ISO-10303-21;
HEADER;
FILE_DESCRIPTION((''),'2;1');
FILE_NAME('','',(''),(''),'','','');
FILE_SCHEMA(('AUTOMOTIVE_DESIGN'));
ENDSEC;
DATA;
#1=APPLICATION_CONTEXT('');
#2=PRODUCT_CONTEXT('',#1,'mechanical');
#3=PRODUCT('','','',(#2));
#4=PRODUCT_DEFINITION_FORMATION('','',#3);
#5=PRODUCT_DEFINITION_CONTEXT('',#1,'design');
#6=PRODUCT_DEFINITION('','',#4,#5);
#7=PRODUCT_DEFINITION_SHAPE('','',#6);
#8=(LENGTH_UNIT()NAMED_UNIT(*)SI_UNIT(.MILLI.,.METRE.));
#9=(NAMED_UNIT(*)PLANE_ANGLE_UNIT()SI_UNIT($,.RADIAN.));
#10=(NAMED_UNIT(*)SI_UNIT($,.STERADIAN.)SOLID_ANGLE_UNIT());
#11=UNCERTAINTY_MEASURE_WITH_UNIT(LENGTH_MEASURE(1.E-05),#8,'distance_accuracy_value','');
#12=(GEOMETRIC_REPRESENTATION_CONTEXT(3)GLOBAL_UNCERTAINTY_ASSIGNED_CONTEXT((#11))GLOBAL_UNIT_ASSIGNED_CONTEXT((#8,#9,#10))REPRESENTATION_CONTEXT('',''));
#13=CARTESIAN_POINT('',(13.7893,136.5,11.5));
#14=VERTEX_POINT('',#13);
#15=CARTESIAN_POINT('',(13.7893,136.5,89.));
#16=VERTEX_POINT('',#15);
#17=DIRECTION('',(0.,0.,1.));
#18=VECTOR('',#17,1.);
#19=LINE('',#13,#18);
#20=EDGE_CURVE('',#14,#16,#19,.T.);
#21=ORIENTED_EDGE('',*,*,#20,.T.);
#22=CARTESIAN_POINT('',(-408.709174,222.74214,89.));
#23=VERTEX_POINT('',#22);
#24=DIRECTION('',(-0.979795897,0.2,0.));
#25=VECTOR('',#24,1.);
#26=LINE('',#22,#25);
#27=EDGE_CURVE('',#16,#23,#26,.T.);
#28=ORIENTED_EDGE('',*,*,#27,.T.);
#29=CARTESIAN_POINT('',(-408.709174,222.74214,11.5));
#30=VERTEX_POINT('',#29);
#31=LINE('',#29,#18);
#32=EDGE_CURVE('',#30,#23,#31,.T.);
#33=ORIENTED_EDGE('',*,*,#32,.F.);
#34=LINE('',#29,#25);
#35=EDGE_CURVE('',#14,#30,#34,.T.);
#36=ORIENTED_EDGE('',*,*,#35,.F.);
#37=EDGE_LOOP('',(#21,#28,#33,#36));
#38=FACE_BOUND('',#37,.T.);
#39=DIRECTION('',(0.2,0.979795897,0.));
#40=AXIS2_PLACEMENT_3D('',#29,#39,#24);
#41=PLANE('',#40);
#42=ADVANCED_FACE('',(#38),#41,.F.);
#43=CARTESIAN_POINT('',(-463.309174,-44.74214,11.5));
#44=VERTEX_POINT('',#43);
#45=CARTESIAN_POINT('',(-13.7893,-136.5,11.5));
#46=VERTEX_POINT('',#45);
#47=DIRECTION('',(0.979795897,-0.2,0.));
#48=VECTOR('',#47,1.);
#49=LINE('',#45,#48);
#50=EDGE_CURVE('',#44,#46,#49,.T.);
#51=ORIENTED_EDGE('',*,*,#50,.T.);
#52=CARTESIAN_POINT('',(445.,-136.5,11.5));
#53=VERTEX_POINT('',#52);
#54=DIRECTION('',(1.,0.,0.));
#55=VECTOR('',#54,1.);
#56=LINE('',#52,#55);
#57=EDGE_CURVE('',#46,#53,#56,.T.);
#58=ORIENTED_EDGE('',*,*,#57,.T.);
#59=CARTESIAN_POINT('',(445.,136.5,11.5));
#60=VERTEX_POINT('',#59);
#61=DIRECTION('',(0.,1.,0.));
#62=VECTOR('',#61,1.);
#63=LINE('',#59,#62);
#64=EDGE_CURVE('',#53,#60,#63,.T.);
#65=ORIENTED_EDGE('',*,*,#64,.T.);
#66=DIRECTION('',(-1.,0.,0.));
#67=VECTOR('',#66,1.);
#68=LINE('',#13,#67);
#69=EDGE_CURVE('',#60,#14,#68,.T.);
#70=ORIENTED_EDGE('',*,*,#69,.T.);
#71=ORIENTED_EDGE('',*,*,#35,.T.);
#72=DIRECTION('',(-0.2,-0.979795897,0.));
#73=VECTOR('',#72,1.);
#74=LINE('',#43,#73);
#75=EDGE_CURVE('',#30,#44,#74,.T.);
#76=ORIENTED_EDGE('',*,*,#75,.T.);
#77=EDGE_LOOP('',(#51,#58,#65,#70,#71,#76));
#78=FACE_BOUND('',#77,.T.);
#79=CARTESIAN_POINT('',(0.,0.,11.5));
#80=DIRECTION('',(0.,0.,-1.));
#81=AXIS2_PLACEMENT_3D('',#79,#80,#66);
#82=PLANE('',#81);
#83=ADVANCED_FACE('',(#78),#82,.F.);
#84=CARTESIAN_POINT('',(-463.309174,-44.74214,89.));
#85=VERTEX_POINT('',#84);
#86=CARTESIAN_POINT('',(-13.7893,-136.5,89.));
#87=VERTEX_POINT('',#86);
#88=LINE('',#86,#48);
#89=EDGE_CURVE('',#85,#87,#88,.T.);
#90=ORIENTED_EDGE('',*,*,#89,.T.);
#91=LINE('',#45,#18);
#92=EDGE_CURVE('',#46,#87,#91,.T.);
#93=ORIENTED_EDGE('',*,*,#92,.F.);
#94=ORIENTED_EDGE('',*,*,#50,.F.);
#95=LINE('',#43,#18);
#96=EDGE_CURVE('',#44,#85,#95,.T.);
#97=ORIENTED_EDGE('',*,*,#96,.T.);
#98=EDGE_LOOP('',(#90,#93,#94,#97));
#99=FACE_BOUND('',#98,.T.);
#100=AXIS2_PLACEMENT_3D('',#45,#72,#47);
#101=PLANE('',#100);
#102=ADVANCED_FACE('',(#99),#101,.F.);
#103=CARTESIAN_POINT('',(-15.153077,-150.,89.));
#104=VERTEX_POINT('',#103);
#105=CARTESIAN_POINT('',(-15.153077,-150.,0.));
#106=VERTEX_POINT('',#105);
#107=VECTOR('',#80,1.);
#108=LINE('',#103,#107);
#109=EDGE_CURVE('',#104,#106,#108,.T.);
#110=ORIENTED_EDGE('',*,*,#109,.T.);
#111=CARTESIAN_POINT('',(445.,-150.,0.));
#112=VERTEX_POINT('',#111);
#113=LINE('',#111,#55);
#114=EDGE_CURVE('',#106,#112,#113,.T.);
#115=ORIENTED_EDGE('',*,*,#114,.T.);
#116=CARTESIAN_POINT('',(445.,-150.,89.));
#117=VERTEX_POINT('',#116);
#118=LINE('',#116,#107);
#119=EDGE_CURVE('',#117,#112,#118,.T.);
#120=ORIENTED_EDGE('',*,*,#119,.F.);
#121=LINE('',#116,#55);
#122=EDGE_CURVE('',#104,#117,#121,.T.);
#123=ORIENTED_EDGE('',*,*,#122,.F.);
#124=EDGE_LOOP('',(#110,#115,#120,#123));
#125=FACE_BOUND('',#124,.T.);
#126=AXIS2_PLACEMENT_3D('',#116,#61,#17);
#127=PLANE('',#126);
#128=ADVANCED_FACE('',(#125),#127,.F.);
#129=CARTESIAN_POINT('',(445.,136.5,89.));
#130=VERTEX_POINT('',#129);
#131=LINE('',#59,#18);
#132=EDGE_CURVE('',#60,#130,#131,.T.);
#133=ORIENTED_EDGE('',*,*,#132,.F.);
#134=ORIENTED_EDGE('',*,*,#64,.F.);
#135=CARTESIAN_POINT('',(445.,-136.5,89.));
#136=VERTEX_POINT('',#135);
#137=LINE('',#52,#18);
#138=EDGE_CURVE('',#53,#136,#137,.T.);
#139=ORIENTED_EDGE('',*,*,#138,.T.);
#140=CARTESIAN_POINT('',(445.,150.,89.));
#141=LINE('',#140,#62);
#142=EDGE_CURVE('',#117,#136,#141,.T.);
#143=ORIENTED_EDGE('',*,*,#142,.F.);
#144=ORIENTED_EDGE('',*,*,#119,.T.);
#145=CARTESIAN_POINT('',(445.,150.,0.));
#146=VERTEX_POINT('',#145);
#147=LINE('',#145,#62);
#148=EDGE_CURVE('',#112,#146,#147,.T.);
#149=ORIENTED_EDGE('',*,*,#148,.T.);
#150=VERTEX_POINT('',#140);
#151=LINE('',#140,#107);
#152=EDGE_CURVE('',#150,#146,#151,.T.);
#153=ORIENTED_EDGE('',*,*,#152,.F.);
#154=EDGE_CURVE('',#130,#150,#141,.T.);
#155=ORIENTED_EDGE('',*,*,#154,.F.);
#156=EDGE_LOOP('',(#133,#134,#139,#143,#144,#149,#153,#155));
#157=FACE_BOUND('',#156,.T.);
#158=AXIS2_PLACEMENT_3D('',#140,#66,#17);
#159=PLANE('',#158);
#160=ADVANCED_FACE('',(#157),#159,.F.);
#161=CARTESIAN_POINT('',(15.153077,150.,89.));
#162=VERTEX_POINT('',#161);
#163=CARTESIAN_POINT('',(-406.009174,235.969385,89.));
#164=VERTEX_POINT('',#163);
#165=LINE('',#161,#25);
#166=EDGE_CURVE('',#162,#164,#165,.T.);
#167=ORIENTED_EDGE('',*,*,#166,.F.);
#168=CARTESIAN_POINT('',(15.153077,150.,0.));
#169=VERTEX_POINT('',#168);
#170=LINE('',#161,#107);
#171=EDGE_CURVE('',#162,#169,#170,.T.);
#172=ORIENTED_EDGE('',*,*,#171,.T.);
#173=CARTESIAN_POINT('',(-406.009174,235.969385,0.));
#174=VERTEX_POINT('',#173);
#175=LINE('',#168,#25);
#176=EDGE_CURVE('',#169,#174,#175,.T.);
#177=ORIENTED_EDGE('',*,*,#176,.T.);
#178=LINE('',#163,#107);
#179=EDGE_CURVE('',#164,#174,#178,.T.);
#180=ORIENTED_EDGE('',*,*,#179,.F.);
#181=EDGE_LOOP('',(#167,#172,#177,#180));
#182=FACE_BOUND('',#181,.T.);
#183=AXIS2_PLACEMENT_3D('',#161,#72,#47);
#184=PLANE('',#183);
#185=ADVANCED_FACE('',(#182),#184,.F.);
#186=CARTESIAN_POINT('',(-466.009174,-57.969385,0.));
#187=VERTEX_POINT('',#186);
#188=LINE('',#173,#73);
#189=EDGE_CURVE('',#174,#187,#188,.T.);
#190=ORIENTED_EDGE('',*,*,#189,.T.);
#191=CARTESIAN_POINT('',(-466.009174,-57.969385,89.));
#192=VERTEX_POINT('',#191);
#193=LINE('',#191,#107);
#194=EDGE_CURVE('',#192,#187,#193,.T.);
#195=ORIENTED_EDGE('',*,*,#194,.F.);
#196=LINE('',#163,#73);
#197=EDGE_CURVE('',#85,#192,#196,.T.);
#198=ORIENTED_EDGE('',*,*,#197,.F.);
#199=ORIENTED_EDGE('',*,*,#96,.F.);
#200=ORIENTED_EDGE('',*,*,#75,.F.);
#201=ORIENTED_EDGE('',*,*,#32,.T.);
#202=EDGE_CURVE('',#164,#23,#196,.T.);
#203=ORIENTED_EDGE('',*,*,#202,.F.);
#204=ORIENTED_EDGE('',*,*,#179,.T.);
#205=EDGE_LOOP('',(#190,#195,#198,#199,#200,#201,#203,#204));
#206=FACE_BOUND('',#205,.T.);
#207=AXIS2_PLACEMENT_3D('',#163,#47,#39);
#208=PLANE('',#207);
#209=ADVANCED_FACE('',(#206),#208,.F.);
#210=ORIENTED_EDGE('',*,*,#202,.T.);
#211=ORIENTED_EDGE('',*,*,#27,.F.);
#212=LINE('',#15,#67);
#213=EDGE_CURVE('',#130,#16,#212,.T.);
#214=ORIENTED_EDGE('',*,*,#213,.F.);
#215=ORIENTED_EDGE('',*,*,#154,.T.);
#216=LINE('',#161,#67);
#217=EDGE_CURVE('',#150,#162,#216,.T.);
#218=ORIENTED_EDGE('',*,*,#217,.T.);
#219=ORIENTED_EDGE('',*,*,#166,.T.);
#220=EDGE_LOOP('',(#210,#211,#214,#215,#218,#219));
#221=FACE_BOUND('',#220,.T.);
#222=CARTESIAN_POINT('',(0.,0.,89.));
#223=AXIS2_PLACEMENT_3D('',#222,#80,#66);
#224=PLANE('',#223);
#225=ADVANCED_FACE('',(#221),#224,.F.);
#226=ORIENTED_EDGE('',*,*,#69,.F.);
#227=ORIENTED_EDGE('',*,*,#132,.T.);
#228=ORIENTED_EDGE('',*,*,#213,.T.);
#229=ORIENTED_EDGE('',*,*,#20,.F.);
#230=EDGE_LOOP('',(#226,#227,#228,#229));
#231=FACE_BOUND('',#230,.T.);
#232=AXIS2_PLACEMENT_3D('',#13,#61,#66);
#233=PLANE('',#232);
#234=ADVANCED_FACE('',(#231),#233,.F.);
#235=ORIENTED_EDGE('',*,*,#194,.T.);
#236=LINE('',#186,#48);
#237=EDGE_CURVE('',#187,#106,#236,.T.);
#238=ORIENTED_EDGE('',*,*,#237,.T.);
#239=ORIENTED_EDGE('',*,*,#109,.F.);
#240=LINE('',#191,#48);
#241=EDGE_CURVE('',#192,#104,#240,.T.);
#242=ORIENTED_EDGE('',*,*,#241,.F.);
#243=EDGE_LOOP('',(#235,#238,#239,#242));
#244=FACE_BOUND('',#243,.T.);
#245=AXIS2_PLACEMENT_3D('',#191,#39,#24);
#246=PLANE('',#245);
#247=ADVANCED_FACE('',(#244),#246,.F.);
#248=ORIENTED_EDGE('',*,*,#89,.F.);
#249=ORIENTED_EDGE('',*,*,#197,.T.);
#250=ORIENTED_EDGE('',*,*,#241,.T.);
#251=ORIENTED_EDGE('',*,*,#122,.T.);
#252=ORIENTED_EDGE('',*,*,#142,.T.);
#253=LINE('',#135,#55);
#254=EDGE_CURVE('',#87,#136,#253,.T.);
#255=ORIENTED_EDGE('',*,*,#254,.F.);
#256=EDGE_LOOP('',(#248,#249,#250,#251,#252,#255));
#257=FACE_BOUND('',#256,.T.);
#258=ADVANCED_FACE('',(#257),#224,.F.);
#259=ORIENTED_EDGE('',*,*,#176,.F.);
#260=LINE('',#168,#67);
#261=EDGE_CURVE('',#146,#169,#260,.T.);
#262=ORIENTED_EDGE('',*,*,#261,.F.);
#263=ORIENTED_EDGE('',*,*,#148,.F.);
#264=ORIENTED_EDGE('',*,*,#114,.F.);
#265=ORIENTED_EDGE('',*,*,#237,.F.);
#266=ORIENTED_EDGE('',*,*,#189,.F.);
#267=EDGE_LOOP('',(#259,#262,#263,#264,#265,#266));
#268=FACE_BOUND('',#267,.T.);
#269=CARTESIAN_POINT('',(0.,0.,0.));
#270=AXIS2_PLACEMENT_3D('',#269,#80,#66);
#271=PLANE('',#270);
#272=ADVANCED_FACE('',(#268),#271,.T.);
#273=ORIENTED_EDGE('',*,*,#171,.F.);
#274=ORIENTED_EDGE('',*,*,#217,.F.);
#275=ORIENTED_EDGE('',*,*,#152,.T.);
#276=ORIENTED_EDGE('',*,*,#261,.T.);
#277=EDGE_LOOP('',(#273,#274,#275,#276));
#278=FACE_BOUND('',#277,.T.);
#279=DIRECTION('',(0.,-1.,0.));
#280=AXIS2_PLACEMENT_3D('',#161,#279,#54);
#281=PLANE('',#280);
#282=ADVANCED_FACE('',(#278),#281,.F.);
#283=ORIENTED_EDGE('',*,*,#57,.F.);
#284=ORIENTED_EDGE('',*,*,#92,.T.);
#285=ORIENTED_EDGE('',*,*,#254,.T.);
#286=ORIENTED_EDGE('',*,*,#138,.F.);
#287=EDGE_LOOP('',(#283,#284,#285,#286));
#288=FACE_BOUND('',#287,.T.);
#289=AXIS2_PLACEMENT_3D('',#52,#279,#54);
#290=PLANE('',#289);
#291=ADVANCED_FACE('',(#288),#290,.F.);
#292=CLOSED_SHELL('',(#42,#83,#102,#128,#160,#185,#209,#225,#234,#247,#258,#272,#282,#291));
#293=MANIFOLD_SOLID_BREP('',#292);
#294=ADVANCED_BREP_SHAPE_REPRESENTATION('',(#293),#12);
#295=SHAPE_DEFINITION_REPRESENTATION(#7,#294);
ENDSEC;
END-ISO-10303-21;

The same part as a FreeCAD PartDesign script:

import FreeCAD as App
import Part
import Sketcher
Q = App.Units.Quantity

doc = App.newDocument("Part")
params = doc.addObject("Spreadsheet::Sheet", "Params")
for row, (alias, value) in enumerate([
    ("sketch1_height", "300 mm"),
    ("sketch1_length", "300 mm"),
    ("pad1_length", "89 mm"),
    ("sketch2_height", "273 mm"),
    ("sketch2_length", "273 mm"),
    ("pocket1_length", "77.5 mm"),
], start=1):
    params.set(f"A{row}", alias)
    params.set(f"B{row}", "=" + value)
    params.setAlias(f"B{row}", alias)

body = doc.addObject("PartDesign::Body", "Body")

# Sketch on XY plane
sketch1 = body.newObject("Sketcher::SketchObject", "Sketch")
sketch1.AttachmentSupport = (doc.getObject("XY_Plane"), [""])
sketch1.MapMode = "FlatFace"
sketch1.addGeometry(Part.LineSegment(App.Vector(445, 150, 0), App.Vector(15, 150, 0)), False)
sketch1.addGeometry(Part.LineSegment(App.Vector(15, 150, 0), App.Vector(-406, 236, 0)), False)
sketch1.addGeometry(Part.LineSegment(App.Vector(-406, 236, 0), App.Vector(-466, -58, 0)), False)
sketch1.addGeometry(Part.LineSegment(App.Vector(-466, -58, 0), App.Vector(-15, -150, 0)), False)
sketch1.addGeometry(Part.LineSegment(App.Vector(-15, -150, 0), App.Vector(445, -150, 0)), False)
sketch1.addGeometry(Part.LineSegment(App.Vector(445, -150, 0), App.Vector(445, 150, 0)), False)
sketch1.addConstraint(Sketcher.Constraint("Coincident", 0, 2, 1, 1))
sketch1.addConstraint(Sketcher.Constraint("Coincident", 1, 2, 2, 1))
sketch1.addConstraint(Sketcher.Constraint("Coincident", 2, 2, 3, 1))
sketch1.addConstraint(Sketcher.Constraint("Coincident", 3, 2, 4, 1))
sketch1.addConstraint(Sketcher.Constraint("Coincident", 4, 2, 5, 1))
sketch1.addConstraint(Sketcher.Constraint("Coincident", 5, 2, 0, 1))
sketch1.addConstraint(Sketcher.Constraint("Horizontal", 0))
sketch1.addConstraint(Sketcher.Constraint("Horizontal", 4))
sketch1.addConstraint(Sketcher.Constraint("Vertical", 5))
sketch1.addConstraint(Sketcher.Constraint("Symmetric", 0, 2, 3, 2, -1, 1))
sketch1.addConstraint(Sketcher.Constraint("Perpendicular", 1, 2))
sketch1.addConstraint(Sketcher.Constraint("Perpendicular", 2, 3))
sketch1.addConstraint(Sketcher.Constraint("DistanceY", 5, 1, 5, 2, Q("300 mm")))
sketch1.addConstraint(Sketcher.Constraint("Distance", 2, Q("300 mm")))
sketch1.addConstraint(Sketcher.Constraint("DistanceX", -1, 1, 4, 2, Q("445 mm")))
sketch1.addConstraint(Sketcher.Constraint("DistanceX", 2, 2, 1, 2, Q("60 mm")))
sketch1.addConstraint(Sketcher.Constraint("DistanceX", 1, 2, 0, 2, Q("421.162251 mm")))
sketch1.setExpression("Constraints[12]", "Params.sketch1_height")
sketch1.setExpression("Constraints[13]", "Params.sketch1_length")
pad1 = body.newObject("PartDesign::Pad", "Pad")
pad1.Profile = sketch1
pad1.setExpression("Length", "Params.pad1_length")

# Sketch on XY plane
sketch2 = body.newObject("Sketcher::SketchObject", "Sketch001")
sketch2.AttachmentSupport = (doc.getObject("XY_Plane"), [""])
sketch2.MapMode = "FlatFace"
sketch2.AttachmentOffset = App.Placement(App.Vector(0, 0, 89), App.Rotation())
sketch2.addGeometry(Part.LineSegment(App.Vector(14, 136, 0), App.Vector(-409, 223, 0)), False)
sketch2.addGeometry(Part.LineSegment(App.Vector(-409, 223, 0), App.Vector(-463, -45, 0)), False)
sketch2.addGeometry(Part.LineSegment(App.Vector(-463, -45, 0), App.Vector(-14, -136, 0)), False)
sketch2.addGeometry(Part.LineSegment(App.Vector(-14, -136, 0), App.Vector(445, -136, 0)), False)
sketch2.addGeometry(Part.LineSegment(App.Vector(445, -136, 0), App.Vector(445, 136, 0)), False)
sketch2.addGeometry(Part.LineSegment(App.Vector(445, 136, 0), App.Vector(14, 136, 0)), False)
sketch2.addConstraint(Sketcher.Constraint("Coincident", 0, 2, 1, 1))
sketch2.addConstraint(Sketcher.Constraint("Coincident", 1, 2, 2, 1))
sketch2.addConstraint(Sketcher.Constraint("Coincident", 2, 2, 3, 1))
sketch2.addConstraint(Sketcher.Constraint("Coincident", 3, 2, 4, 1))
sketch2.addConstraint(Sketcher.Constraint("Coincident", 4, 2, 5, 1))
sketch2.addConstraint(Sketcher.Constraint("Coincident", 5, 2, 0, 1))
sketch2.addConstraint(Sketcher.Constraint("Horizontal", 3))
sketch2.addConstraint(Sketcher.Constraint("Vertical", 4))
sketch2.addConstraint(Sketcher.Constraint("Horizontal", 5))
sketch2.addConstraint(Sketcher.Constraint("Symmetric", 2, 2, 5, 2, -1, 1))
sketch2.addConstraint(Sketcher.Constraint("Perpendicular", 0, 1))
sketch2.addConstraint(Sketcher.Constraint("Perpendicular", 1, 2))
sketch2.addConstraint(Sketcher.Constraint("DistanceY", 4, 1, 4, 2, Q("273 mm")))
sketch2.addConstraint(Sketcher.Constraint("Distance", 1, Q("273 mm")))
sketch2.addConstraint(Sketcher.Constraint("DistanceX", -1, 1, 3, 2, Q("445 mm")))
sketch2.addConstraint(Sketcher.Constraint("DistanceX", 1, 2, 0, 2, Q("54.6 mm")))
sketch2.addConstraint(Sketcher.Constraint("Distance", 0, Q("431.2107 mm")))
sketch2.setExpression("Constraints[12]", "Params.sketch2_height")
sketch2.setExpression("Constraints[13]", "Params.sketch2_length")
pocket1 = body.newObject("PartDesign::Pocket", "Pocket")
pocket1.Profile = sketch2
pocket1.setExpression("Length", "Params.pocket1_length")

doc.recompute()
